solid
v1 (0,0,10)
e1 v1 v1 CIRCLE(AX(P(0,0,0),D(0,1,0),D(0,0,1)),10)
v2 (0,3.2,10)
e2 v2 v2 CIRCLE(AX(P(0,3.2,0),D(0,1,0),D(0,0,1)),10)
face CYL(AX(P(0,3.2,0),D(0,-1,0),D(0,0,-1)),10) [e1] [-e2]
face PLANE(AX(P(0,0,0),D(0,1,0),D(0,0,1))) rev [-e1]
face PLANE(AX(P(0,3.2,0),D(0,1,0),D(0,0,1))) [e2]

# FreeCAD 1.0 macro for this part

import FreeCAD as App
import Part
import Sketcher
from FreeCAD import Vector

doc = App.newDocument("Part")
params = doc.addObject("Spreadsheet::Sheet", "Params")
for row, (alias, value) in enumerate([
    ("sketch1_diameter", "20 mm"),
    ("pad1_length", "3.2 mm"),
], start=1):
    params.set(f"A{row}", alias)
    params.set(f"B{row}", "=" + value)
    params.setAlias(f"B{row}", alias)

body = doc.addObject("PartDesign::Body", "Body")

sketch1 = body.newObject("Sketcher::SketchObject", "Sketch")
sketch1.AttachmentSupport = (doc.getObject("XZ_Plane"), [""])
sketch1.MapMode = "FlatFace"
sketch1.addGeometry(Part.Circle(Vector(0, 0, 0), Vector(0, 0, 1), 10), False)
sketch1.addConstraint(Sketcher.Constraint("Coincident", 0, 3, -1, 1))
sketch1.addConstraint(Sketcher.Constraint("Diameter", 0, 20.0))
sketch1.setExpression("Constraints[1]", "Params.sketch1_diameter")
pad1 = body.newObject("PartDesign::Pad", "Pad")
pad1.Profile = sketch1
pad1.setExpression("Length", "Params.pad1_length")
pad1.Reversed = True

doc.recompute()
